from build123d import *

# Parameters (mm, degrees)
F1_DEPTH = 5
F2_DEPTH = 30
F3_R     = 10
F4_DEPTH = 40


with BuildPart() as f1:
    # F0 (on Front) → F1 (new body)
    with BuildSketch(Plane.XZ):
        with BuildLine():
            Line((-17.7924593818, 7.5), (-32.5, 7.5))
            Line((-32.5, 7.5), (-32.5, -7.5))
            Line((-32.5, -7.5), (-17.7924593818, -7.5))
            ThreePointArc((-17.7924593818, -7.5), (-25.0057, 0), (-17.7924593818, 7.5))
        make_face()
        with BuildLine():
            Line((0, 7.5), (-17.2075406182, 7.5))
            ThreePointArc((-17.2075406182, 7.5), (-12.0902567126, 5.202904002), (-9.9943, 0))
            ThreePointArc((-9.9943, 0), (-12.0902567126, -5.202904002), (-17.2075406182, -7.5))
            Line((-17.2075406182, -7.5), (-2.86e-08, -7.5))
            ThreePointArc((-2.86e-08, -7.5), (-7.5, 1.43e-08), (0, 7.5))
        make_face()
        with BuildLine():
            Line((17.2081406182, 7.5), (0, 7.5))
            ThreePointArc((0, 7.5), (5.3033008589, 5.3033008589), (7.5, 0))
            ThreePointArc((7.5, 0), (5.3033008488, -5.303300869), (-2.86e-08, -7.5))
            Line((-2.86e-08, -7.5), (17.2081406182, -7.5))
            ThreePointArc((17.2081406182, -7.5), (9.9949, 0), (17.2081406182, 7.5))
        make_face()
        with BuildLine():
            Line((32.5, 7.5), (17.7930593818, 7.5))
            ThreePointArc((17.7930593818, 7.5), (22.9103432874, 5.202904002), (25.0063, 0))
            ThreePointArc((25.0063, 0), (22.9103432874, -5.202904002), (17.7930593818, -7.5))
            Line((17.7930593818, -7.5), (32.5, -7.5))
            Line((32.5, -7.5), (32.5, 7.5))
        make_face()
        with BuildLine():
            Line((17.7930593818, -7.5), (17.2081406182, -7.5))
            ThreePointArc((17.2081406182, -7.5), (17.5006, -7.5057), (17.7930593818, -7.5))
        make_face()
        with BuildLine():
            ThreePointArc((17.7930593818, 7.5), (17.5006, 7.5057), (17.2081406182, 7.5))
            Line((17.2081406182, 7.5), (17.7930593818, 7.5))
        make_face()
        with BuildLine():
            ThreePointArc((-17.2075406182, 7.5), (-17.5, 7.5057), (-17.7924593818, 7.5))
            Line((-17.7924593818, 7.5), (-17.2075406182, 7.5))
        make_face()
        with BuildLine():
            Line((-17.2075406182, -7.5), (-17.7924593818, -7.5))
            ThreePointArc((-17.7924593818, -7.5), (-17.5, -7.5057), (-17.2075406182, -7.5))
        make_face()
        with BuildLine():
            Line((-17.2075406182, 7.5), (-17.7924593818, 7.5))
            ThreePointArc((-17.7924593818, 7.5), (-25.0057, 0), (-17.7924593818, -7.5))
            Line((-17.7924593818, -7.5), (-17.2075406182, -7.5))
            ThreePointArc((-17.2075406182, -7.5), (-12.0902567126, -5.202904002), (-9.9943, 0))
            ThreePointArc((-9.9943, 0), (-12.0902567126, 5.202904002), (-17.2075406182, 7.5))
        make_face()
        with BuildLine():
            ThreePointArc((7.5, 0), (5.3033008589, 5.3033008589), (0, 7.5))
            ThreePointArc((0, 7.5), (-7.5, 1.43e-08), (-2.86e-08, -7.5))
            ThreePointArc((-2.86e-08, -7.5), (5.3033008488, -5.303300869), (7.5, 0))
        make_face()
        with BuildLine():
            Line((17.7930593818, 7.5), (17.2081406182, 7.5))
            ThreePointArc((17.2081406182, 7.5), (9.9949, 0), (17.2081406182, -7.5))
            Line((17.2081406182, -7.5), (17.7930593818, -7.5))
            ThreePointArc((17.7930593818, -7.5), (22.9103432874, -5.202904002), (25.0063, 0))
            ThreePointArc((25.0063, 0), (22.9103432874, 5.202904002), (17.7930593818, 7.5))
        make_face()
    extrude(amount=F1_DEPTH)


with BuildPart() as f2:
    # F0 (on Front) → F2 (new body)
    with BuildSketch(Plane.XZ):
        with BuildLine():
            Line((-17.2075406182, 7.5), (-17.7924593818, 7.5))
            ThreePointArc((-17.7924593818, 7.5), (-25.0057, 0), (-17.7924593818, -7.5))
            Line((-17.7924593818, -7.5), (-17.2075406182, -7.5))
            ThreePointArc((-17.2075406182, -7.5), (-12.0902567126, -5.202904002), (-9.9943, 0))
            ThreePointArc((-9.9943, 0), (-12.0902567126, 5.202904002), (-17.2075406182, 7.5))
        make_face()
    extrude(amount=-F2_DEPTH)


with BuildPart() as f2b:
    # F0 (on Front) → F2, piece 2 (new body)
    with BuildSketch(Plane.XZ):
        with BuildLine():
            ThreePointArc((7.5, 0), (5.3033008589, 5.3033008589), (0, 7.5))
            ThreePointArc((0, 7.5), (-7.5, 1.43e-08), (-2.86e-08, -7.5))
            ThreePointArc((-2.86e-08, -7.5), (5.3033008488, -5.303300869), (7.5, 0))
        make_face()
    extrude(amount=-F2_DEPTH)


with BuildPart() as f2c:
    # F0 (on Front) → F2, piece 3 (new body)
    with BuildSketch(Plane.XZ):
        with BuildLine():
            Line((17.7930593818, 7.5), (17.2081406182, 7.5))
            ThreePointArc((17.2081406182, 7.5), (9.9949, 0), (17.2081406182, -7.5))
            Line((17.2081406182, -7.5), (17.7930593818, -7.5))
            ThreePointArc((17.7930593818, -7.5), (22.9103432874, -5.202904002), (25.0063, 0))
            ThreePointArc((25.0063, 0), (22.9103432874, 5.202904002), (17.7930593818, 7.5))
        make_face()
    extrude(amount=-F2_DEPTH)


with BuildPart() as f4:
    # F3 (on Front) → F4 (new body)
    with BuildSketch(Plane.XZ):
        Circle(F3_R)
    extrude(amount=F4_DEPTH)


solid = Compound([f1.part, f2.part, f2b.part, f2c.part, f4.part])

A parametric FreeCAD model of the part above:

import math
import FreeCAD as App
import Part
import Sketcher
from FreeCAD import Vector

doc = App.newDocument("Part")
params = doc.addObject("Spreadsheet::Sheet", "Params")
for row, (alias, value) in enumerate([
    ("sketch1_height", "15 mm"),
    ("pad1_length", "5 mm"),
    ("pad2_length", "30 mm"),
    ("sketch3_diameter", "15 mm"),
    ("pad3_length", "30 mm"),
    ("pad4_length", "30 mm"),
    ("sketch5_diameter", "20 mm"),
    ("pad5_length", "40 mm"),
], start=1):
    params.set(f"A{row}", alias)
    params.set(f"B{row}", "=" + value)
    params.setAlias(f"B{row}", alias)

body = doc.addObject("PartDesign::Body", "Body")

sketch1 = body.newObject("Sketcher::SketchObject", "Sketch")
sketch1.AttachmentSupport = (doc.getObject("XZ_Plane"), [""])
sketch1.MapMode = "FlatFace"
sketch1.addGeometry(Part.LineSegment(Vector(-17.8, 7.5, 0), Vector(-32.5, 7.5, 0)), False)
sketch1.addGeometry(Part.LineSegment(Vector(-32.5, 7.5, 0), Vector(-32.5, -7.5, 0)), False)
sketch1.addGeometry(Part.LineSegment(Vector(-32.5, -7.5, 0), Vector(-17.8, -7.5, 0)), False)
sketch1.addGeometry(Part.ArcOfCircle(Part.Circle(Vector(-17.5, 0, 0), Vector(0, 0, 1), 7.5), math.radians(-92.23), math.radians(-87.77)), False)
sketch1.addGeometry(Part.LineSegment(Vector(-17.2, -7.5, 0), Vector(17.2, -7.5, 0)), False)
sketch1.addGeometry(Part.ArcOfCircle(Part.Circle(Vector(17.5, 0, 0), Vector(0, 0, 1), 7.5), math.radians(-92.23), math.radians(-87.77)), False)
sketch1.addGeometry(Part.LineSegment(Vector(17.8, -7.5, 0), Vector(32.5, -7.5, 0)), False)
sketch1.addGeometry(Part.LineSegment(Vector(32.5, -7.5, 0), Vector(32.5, 7.5, 0)), False)
sketch1.addGeometry(Part.LineSegment(Vector(32.5, 7.5, 0), Vector(17.8, 7.5, 0)), False)
sketch1.addGeometry(Part.ArcOfCircle(Part.Circle(Vector(17.5, 0, 0), Vector(0, 0, 1), 7.5), math.radians(87.77), math.radians(92.23)), False)
sketch1.addGeometry(Part.LineSegment(Vector(17.2, 7.5, 0), Vector(-17.2, 7.5, 0)), False)
sketch1.addGeometry(Part.ArcOfCircle(Part.Circle(Vector(-17.5, 0, 0), Vector(0, 0, 1), 7.5), math.radians(87.77), math.radians(92.23)), False)
sketch1.addConstraint(Sketcher.Constraint("Coincident", 0, 2, 1, 1))
sketch1.addConstraint(Sketcher.Constraint("Coincident", 1, 2, 2, 1))
sketch1.addConstraint(Sketcher.Constraint("Coincident", 2, 2, 3, 1))
sketch1.addConstraint(Sketcher.Constraint("Coincident", 3, 2, 4, 1))
sketch1.addConstraint(Sketcher.Constraint("Coincident", 4, 2, 5, 1))
sketch1.addConstraint(Sketcher.Constraint("Coincident", 5, 2, 6, 1))
sketch1.addConstraint(Sketcher.Constraint("Coincident", 6, 2, 7, 1))
sketch1.addConstraint(Sketcher.Constraint("Coincident", 7, 2, 8, 1))
sketch1.addConstraint(Sketcher.Constraint("Coincident", 8, 2, 9, 1))
sketch1.addConstraint(Sketcher.Constraint("Coincident", 9, 2, 10, 1))
sketch1.addConstraint(Sketcher.Constraint("Coincident", 10, 2, 11, 1))
sketch1.addConstraint(Sketcher.Constraint("Coincident", 11, 2, 0, 1))
sketch1.addConstraint(Sketcher.Constraint("Horizontal", 0))
sketch1.addConstraint(Sketcher.Constraint("Vertical", 1))
sketch1.addConstraint(Sketcher.Constraint("Horizontal", 2))
sketch1.addConstraint(Sketcher.Constraint("Horizontal", 4))
sketch1.addConstraint(Sketcher.Constraint("Horizontal", 6))
sketch1.addConstraint(Sketcher.Constraint("Vertical", 7))
sketch1.addConstraint(Sketcher.Constraint("Horizontal", 8))
sketch1.addConstraint(Sketcher.Constraint("Horizontal", 10))
sketch1.addConstraint(Sketcher.Constraint("Coincident", 9, 3, 5, 3))
sketch1.addConstraint(Sketcher.Constraint("Coincident", 11, 3, 3, 3))
sketch1.addConstraint(Sketcher.Constraint("Equal", 3, 5))
sketch1.addConstraint(Sketcher.Constraint("Equal", 5, 9))
sketch1.addConstraint(Sketcher.Constraint("Equal", 9, 11))
sketch1.addConstraint(Sketcher.Constraint("Symmetric", 0, 2, 6, 2, -1, 1))
sketch1.addConstraint(Sketcher.Constraint("Symmetric", 5, 2, 8, 2, -1))
sketch1.addConstraint(Sketcher.Constraint("Symmetric", 3, 2, 10, 2, -1))
sketch1.addConstraint(Sketcher.Constraint("Horizontal", 2, 2, 3, 2))
sketch1.addConstraint(Sketcher.Constraint("Horizontal", 4, 2, 5, 2))
sketch1.addConstraint(Sketcher.Constraint("DistanceY", 1, 2, 1, 1, 15.0))
sketch1.addConstraint(Sketcher.Constraint("DistanceX", 0, 2, 3, 3, 15.0))
sketch1.addConstraint(Sketcher.Constraint("DistanceX", 3, 3, -1, 1, 17.5))
sketch1.addConstraint(Sketcher.Constraint("Radius", 3, 7.5057))
sketch1.addConstraint(Sketcher.Constraint("DistanceX", 4, 1, 4, 2, 34.415681))
sketch1.setExpression("Constraints[30]", "Params.sketch1_height")
pad1 = body.newObject("PartDesign::Pad", "Pad")
pad1.Profile = sketch1
pad1.setExpression("Length", "Params.pad1_length")
body2 = doc.addObject("PartDesign::Body", "Body001")

sketch2 = body2.newObject("Sketcher::SketchObject", "Sketch001")
sketch2.AttachmentSupport = (doc.getObject("XZ_Plane001"), [""])
sketch2.MapMode = "FlatFace"
sketch2.addGeometry(Part.LineSegment(Vector(-17.2, 7.5, 0), Vector(-17.8, 7.5, 0)), False)
sketch2.addGeometry(Part.ArcOfCircle(Part.Circle(Vector(-17.5, 0, 0), Vector(0, 0, 1), 7.5), math.radians(92), math.radians(268)), False)
sketch2.addGeometry(Part.LineSegment(Vector(-17.8, -7.5, 0), Vector(-17.2, -7.5, 0)), False)
sketch2.addGeometry(Part.ArcOfCircle(Part.Circle(Vector(-17.5, 0, 0), Vector(0, 0, 1), 7.5), math.radians(-88), math.radians(0)), False)
sketch2.addGeometry(Part.ArcOfCircle(Part.Circle(Vector(-17.5, 0, 0), Vector(0, 0, 1), 7.5), math.radians(0), math.radians(88)), False)
sketch2.addConstraint(Sketcher.Constraint("Coincident", 0, 2, 1, 1))
sketch2.addConstraint(Sketcher.Constraint("Coincident", 1, 2, 2, 1))
sketch2.addConstraint(Sketcher.Constraint("Coincident", 2, 2, 3, 1))
sketch2.addConstraint(Sketcher.Constraint("Tangent", 3, 2, 4, 1))
sketch2.addConstraint(Sketcher.Constraint("Coincident", 4, 2, 0, 1))
sketch2.addConstraint(Sketcher.Constraint("Horizontal", 0))
sketch2.addConstraint(Sketcher.Constraint("Horizontal", 2))
sketch2.addConstraint(Sketcher.Constraint("Coincident", 3, 3, 1, 3))
sketch2.addConstraint(Sketcher.Constraint("Equal", 1, 3))
sketch2.addConstraint(Sketcher.Constraint("Equal", 3, 4))
sketch2.addConstraint(Sketcher.Constraint("Symmetric", 0, 2, 1, 2, -1))
sketch2.addConstraint(Sketcher.Constraint("PointOnObject", 3, 2, -1))
sketch2.addConstraint(Sketcher.Constraint("DistanceY", 1, 2, 0, 2, 15.0))
sketch2.addConstraint(Sketcher.Constraint("DistanceX", 1, 3, -1, 1, 17.5))
sketch2.addConstraint(Sketcher.Constraint("Radius", 1, 7.5057))
pad2 = body2.newObject("PartDesign::Pad", "Pad001")
pad2.Profile = sketch2
pad2.setExpression("Length", "Params.pad2_length")
pad2.Reversed = True
body3 = doc.addObject("PartDesign::Body", "Body002")

sketch3 = body3.newObject("Sketcher::SketchObject", "Sketch002")
sketch3.AttachmentSupport = (doc.getObject("XZ_Plane002"), [""])
sketch3.MapMode = "FlatFace"
sketch3.addGeometry(Part.Circle(Vector(0, 0, 0), Vector(0, 0, 1), 8), False)
sketch3.addConstraint(Sketcher.Constraint("Coincident", 0, 3, -1, 1))
sketch3.addConstraint(Sketcher.Constraint("Diameter", 0, 15.0))
sketch3.setExpression("Constraints[1]", "Params.sketch3_diameter")
pad3 = body3.newObject("PartDesign::Pad", "Pad002")
pad3.Profile = sketch3
pad3.setExpression("Length", "Params.pad3_length")
pad3.Reversed = True
body4 = doc.addObject("PartDesign::Body", "Body003")

sketch4 = body4.newObject("Sketcher::SketchObject", "Sketch003")
sketch4.AttachmentSupport = (doc.getObject("XZ_Plane003"), [""])
sketch4.MapMode = "FlatFace"
sketch4.addGeometry(Part.LineSegment(Vector(17.8, 7.5, 0), Vector(17.2, 7.5, 0)), False)
sketch4.addGeometry(Part.ArcOfCircle(Part.Circle(Vector(17.5, 0, 0), Vector(0, 0, 1), 7.5), math.radians(92), math.radians(268)), False)
sketch4.addGeometry(Part.LineSegment(Vector(17.2, -7.5, 0), Vector(17.8, -7.5, 0)), False)
sketch4.addGeometry(Part.ArcOfCircle(Part.Circle(Vector(17.5, 0, 0), Vector(0, 0, 1), 7.5), math.radians(-88), math.radians(0)), False)
sketch4.addGeometry(Part.ArcOfCircle(Part.Circle(Vector(17.5, 0, 0), Vector(0, 0, 1), 7.5), math.radians(0), math.radians(88)), False)
sketch4.addConstraint(Sketcher.Constraint("Coincident", 0, 2, 1, 1))
sketch4.addConstraint(Sketcher.Constraint("Coincident", 1, 2, 2, 1))
sketch4.addConstraint(Sketcher.Constraint("Coincident", 2, 2, 3, 1))
sketch4.addConstraint(Sketcher.Constraint("Tangent", 3, 2, 4, 1))
sketch4.addConstraint(Sketcher.Constraint("Coincident", 4, 2, 0, 1))
sketch4.addConstraint(Sketcher.Constraint("Horizontal", 0))
sketch4.addConstraint(Sketcher.Constraint("Horizontal", 2))
sketch4.addConstraint(Sketcher.Constraint("Coincident", 3, 3, 1, 3))
sketch4.addConstraint(Sketcher.Constraint("Equal", 1, 3))
sketch4.addConstraint(Sketcher.Constraint("Equal", 3, 4))
sketch4.addConstraint(Sketcher.Constraint("Symmetric", 0, 2, 1, 2, -1))
sketch4.addConstraint(Sketcher.Constraint("PointOnObject", 3, 2, -1))
sketch4.addConstraint(Sketcher.Constraint("DistanceY", 1, 2, 0, 2, 15.0))
sketch4.addConstraint(Sketcher.Constraint("Radius", 1, 7.5057))
sketch4.addConstraint(Sketcher.Constraint("DistanceX", -1, 1, 1, 3, 17.5006))
pad4 = body4.newObject("PartDesign::Pad", "Pad003")
pad4.Profile = sketch4
pad4.setExpression("Length", "Params.pad4_length")
pad4.Reversed = True
body5 = doc.addObject("PartDesign::Body", "Body004")

sketch5 = body5.newObject("Sketcher::SketchObject", "Sketch004")
sketch5.AttachmentSupport = (doc.getObject("XZ_Plane004"), [""])
sketch5.MapMode = "FlatFace"
sketch5.addGeometry(Part.Circle(Vector(0, 0, 0), Vector(0, 0, 1), 10), False)
sketch5.addConstraint(Sketcher.Constraint("Coincident", 0, 3, -1, 1))
sketch5.addConstraint(Sketcher.Constraint("Diameter", 0, 20.0))
sketch5.setExpression("Constraints[1]", "Params.sketch5_diameter")
pad5 = body5.newObject("PartDesign::Pad", "Pad004")
pad5.Profile = sketch5
pad5.setExpression("Length", "Params.pad5_length")

doc.recompute()
